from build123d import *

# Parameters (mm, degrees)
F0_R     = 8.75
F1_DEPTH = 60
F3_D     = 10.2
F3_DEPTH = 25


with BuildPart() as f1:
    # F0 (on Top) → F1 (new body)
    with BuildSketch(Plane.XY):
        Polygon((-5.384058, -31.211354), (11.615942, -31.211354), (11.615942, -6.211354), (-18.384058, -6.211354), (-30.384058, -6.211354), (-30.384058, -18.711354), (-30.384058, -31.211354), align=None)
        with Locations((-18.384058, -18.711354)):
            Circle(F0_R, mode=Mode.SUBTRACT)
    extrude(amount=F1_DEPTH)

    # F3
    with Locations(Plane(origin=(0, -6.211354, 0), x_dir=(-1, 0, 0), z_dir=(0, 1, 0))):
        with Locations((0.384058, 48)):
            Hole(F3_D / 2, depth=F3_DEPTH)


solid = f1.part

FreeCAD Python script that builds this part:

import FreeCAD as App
import Part
import Sketcher
Q = App.Units.Quantity


def add_polygon(sketch, points):
    """Adds a closed chain of lines whose ends are joined by coincident constraints."""
    first, n = sketch.GeometryCount, len(points)
    for a, b in zip(points, points[1:] + points[:1]):
        sketch.addGeometry(Part.LineSegment(App.Vector(*a, 0), App.Vector(*b, 0)), False)
    for i in range(n):
        sketch.addConstraint(Sketcher.Constraint("Coincident", first + i, 2, first + (i + 1) % n, 1))

doc = App.newDocument("Part")
body = doc.addObject("PartDesign::Body", "Body")

# Sketch on XY plane
sketch1 = body.newObject("Sketcher::SketchObject", "Sketch")
sketch1.AttachmentSupport = (doc.getObject("XY_Plane"), [""])
sketch1.MapMode = "FlatFace"
add_polygon(sketch1, [(12, -31), (12, -6), (-30, -6), (-30, -31)])  # lines 0-3
sketch1.addGeometry(Part.Circle(App.Vector(-18, -19, 0), App.Vector(0, 0, 1), 9), False)  # 4
sketch1.addConstraint([
    Sketcher.Constraint("Vertical", 0),
    Sketcher.Constraint("Horizontal", 1),
    Sketcher.Constraint("Vertical", 2),
    Sketcher.Constraint("Horizontal", 3),
    Sketcher.Constraint("Diameter", 4, Q("17.5 mm")),
    Sketcher.Constraint("DistanceX", 1, 2, 1, 1, Q("42 mm")),
    Sketcher.Constraint("DistanceY", 0, 1, 0, 2, Q("25 mm")),
    Sketcher.Constraint("DistanceX", 4, 3, 0, 2, Q("30 mm")),
    Sketcher.Constraint("DistanceY", 4, 3, 0, 2, Q("12.5 mm")),
    Sketcher.Constraint("DistanceX", 4, 3, -1, 1, Q("18.384058 mm")),
    Sketcher.Constraint("DistanceY", 4, 3, -1, 1, Q("18.711354 mm")),
])
pad1 = body.newObject("PartDesign::Pad", "Pad")
pad1.Profile = sketch1
pad1.Length = 60

# Sketch on XZ plane
sketch2 = body.newObject("Sketcher::SketchObject", "Sketch001")
sketch2.AttachmentSupport = (doc.getObject("XZ_Plane"), [""])
sketch2.MapMode = "FlatFace"
sketch2.AttachmentOffset = App.Placement(App.Vector(0, 0, 6.211354), App.Rotation())
sketch2.addGeometry(Part.Circle(App.Vector(0, 48, 0), App.Vector(0, 0, 1), 5), False)
sketch2.addConstraint([
    Sketcher.Constraint("Diameter", 0, Q("10.2 mm")),
    Sketcher.Constraint("DistanceY", -1, 1, 0, 3, Q("48 mm")),
    Sketcher.Constraint("DistanceX", 0, 3, -1, 1, Q("0.384058 mm")),
])
doc.recompute()
hole = body.newObject("PartDesign::Hole", "Hole")
hole.Profile = sketch2
hole.ThreadType = "None"
hole.Diameter = 10.2
hole.DepthType = "Dimension"
hole.Depth = 25
hole.DrillPoint = "Flat"
hole.Reversed = True

doc.recompute()
